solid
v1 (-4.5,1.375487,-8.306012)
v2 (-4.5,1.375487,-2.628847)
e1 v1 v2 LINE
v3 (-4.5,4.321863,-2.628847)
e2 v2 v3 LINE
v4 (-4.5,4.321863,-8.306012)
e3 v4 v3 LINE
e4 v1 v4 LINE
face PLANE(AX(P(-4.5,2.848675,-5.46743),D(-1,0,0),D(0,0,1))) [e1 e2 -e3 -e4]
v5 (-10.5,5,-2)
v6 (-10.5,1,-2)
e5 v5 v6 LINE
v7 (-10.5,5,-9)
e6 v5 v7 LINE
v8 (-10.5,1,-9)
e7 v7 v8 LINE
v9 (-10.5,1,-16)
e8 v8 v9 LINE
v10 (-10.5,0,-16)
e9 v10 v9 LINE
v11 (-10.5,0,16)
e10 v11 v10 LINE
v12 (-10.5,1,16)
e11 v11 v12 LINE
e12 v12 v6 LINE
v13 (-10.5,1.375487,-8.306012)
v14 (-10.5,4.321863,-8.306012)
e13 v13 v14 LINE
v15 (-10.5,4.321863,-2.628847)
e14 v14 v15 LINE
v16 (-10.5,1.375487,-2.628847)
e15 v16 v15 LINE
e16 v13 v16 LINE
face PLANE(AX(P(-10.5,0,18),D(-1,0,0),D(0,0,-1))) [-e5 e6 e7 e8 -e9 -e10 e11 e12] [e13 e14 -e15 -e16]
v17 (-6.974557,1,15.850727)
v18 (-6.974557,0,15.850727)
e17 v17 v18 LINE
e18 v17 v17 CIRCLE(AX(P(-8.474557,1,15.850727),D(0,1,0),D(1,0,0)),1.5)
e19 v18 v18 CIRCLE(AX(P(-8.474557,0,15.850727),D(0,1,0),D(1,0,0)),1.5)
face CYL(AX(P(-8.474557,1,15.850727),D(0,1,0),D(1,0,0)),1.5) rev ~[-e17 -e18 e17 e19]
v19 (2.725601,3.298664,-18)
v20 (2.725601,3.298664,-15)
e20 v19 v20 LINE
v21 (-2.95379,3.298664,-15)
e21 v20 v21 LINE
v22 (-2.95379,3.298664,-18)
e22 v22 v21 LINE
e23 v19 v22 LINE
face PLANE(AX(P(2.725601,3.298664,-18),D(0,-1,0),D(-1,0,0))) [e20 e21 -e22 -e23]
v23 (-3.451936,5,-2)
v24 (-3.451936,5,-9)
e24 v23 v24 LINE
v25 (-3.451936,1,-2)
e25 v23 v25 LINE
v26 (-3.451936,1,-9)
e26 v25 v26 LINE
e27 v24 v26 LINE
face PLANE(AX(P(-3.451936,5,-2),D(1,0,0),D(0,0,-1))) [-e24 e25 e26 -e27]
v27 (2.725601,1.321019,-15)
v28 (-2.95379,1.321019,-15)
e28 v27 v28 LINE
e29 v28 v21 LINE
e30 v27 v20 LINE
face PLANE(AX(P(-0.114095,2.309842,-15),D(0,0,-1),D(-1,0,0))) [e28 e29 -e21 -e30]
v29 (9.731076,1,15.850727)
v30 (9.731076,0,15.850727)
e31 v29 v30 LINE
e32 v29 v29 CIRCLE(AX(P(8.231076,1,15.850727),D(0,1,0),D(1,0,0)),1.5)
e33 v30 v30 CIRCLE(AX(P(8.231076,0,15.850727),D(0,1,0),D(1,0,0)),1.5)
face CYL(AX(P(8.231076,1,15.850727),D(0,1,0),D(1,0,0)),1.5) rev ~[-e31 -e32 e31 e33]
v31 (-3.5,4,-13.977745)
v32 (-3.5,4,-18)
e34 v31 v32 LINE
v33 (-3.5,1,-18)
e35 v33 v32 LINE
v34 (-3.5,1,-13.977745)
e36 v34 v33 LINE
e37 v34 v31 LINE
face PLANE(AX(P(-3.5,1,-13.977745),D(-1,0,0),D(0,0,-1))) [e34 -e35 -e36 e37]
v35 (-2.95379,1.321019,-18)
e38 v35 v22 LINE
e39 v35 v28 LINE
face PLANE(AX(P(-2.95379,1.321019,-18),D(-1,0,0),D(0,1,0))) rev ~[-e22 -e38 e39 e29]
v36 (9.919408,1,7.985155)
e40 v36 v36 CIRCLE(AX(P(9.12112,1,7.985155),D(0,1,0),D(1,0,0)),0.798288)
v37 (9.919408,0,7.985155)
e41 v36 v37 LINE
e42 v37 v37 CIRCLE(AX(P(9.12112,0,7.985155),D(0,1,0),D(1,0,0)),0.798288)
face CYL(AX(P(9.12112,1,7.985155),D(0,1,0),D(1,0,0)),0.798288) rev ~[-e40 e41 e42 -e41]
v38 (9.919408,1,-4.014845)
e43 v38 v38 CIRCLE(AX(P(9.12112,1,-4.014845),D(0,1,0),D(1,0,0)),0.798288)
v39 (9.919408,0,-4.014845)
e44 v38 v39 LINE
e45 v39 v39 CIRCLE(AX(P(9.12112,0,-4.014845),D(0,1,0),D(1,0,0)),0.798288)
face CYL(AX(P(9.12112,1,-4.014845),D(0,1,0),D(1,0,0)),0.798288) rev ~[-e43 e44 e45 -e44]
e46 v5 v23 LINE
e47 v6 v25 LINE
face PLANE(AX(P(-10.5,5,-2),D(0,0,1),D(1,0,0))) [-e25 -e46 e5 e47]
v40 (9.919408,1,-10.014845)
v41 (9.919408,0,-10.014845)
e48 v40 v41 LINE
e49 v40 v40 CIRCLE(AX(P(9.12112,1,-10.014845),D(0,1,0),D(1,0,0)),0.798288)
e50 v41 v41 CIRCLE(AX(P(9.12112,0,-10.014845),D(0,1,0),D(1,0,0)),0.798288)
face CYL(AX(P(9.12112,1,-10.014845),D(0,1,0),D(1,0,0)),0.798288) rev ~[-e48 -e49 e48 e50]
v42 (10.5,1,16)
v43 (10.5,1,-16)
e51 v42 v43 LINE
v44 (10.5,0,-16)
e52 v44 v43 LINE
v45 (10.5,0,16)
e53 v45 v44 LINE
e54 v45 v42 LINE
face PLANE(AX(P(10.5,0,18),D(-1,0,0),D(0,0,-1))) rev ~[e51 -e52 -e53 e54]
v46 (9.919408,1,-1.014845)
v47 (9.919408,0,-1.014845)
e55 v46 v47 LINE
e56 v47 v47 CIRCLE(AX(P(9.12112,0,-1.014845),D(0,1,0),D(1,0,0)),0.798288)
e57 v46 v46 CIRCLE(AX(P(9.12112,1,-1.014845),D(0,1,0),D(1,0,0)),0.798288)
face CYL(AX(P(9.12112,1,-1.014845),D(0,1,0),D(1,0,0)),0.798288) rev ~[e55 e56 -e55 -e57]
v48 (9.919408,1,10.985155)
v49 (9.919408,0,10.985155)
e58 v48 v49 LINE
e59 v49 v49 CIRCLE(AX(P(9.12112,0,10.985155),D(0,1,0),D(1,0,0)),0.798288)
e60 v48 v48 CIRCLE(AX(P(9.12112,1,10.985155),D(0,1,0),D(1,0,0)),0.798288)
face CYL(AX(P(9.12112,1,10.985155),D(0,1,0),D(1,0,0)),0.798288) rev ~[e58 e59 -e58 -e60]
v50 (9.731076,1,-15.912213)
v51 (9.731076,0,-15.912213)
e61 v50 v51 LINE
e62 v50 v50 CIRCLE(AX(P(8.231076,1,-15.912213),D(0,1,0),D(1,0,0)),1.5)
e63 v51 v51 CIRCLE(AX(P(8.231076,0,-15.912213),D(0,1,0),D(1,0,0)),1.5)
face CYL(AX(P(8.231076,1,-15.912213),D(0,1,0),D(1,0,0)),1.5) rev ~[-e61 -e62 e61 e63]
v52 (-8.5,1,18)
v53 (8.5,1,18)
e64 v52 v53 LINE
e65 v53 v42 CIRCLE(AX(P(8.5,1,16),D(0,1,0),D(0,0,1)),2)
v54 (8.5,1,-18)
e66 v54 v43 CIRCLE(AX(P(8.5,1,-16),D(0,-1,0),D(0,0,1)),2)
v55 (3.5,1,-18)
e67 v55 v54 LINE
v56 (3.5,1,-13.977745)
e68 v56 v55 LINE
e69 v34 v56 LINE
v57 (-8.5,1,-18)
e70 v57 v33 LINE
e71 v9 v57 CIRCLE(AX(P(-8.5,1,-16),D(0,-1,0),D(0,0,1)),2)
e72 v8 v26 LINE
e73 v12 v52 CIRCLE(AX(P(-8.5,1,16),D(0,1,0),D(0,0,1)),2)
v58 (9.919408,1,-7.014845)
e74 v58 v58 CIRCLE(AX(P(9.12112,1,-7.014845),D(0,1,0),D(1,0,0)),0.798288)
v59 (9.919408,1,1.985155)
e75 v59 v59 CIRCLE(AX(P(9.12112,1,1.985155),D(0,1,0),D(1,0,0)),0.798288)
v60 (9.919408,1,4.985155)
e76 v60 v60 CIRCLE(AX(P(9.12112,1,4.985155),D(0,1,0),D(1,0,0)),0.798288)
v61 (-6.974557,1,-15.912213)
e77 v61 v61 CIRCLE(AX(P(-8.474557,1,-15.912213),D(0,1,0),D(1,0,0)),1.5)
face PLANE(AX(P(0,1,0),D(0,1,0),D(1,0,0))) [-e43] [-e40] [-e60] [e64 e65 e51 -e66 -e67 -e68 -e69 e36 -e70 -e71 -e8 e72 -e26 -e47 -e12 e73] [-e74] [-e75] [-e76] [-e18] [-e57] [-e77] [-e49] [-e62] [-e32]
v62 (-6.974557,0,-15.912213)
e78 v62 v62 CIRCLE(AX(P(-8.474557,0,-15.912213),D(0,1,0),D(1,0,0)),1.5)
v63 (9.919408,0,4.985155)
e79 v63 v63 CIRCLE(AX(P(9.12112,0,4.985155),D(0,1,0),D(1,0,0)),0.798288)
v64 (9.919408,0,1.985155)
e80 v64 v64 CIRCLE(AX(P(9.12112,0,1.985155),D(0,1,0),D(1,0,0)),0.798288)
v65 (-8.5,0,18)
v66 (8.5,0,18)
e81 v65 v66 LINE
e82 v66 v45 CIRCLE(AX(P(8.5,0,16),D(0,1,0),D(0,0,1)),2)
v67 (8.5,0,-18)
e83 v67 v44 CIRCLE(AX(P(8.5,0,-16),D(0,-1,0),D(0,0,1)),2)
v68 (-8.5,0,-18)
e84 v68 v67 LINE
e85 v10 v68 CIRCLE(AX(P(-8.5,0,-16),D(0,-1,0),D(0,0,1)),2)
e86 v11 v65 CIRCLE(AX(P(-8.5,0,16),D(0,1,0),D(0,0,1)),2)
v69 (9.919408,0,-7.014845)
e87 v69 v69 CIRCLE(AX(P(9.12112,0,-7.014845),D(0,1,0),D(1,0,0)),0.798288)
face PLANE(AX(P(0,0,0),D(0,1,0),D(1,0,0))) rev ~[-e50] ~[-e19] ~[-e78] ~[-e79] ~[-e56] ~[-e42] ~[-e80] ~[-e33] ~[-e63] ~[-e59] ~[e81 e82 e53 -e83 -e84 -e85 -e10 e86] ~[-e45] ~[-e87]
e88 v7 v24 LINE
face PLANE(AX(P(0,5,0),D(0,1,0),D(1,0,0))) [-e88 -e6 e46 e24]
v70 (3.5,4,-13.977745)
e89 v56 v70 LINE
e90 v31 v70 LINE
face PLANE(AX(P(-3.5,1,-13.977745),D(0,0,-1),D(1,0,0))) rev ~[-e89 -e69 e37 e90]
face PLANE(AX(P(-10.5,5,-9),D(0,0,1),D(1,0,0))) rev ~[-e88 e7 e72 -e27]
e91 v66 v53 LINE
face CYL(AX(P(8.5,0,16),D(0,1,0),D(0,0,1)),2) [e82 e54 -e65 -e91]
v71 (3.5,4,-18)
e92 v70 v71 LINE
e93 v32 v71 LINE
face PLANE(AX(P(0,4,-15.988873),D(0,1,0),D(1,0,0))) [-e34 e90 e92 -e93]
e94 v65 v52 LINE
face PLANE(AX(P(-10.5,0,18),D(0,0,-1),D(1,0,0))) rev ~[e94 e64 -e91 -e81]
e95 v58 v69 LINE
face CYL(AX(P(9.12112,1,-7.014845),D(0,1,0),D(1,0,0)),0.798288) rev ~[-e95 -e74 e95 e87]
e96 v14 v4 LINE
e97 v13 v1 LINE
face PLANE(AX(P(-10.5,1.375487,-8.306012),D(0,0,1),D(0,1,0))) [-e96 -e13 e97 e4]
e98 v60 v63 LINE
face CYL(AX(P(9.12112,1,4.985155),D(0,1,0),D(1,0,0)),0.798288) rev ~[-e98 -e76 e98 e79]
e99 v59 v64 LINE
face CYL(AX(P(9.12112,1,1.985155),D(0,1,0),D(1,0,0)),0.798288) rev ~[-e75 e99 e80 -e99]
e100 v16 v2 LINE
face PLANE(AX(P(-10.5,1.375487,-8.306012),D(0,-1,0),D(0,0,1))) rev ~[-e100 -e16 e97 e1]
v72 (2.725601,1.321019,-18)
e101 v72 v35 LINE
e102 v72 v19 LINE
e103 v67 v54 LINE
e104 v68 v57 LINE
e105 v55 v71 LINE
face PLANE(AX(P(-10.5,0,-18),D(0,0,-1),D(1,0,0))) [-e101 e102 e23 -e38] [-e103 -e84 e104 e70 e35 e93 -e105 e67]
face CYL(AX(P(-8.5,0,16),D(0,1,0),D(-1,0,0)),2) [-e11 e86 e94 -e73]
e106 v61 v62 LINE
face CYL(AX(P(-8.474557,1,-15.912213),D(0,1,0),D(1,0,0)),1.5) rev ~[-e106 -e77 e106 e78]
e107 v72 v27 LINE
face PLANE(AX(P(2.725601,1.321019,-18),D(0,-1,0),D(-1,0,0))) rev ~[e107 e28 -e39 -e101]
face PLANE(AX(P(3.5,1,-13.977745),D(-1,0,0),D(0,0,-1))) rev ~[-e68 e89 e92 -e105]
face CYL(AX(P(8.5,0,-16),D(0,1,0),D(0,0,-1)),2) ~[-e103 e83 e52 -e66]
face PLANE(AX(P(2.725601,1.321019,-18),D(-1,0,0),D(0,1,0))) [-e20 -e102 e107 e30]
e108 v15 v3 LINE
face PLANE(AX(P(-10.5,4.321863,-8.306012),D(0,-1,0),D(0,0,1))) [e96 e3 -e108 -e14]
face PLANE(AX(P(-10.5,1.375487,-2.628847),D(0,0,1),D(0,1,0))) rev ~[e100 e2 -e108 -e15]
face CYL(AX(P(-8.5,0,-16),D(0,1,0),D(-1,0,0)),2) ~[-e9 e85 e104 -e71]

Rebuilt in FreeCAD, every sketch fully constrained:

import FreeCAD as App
import Part
import Sketcher
from FreeCAD import Vector


def edges_at(feature, points):
    """Names of the edges that pass closest to the given points."""
    edges = feature.Shape.Edges
    near = lambda p: min(range(len(edges)), key=lambda i: edges[i].distToShape(Part.Vertex(*p))[0])
    return sorted({f"Edge{near(p) + 1}" for p in points})

doc = App.newDocument("Part")
body = doc.addObject("PartDesign::Body", "Body")

sketch1 = doc.addObject("Sketcher::SketchObject", "Sketch")
body.addObject(sketch1)
sketch1.AttachmentSupport = (doc.XZ_Plane, [""])
sketch1.MapMode = "FlatFace"
sketch1.addGeometry([
    Part.LineSegment(Vector(-10, -18, 0), Vector(-10, 18, 0)),
    Part.LineSegment(Vector(-10, 18, 0), Vector(10, 18, 0)),
    Part.LineSegment(Vector(10, 18, 0), Vector(10, -18, 0)),
    Part.LineSegment(Vector(10, -18, 0), Vector(-10, -18, 0)),
], False)
sketch1.addConstraint([
    Sketcher.Constraint("Coincident", 0, 2, 1, 1),
    Sketcher.Constraint("Coincident", 1, 2, 2, 1),
    Sketcher.Constraint("Coincident", 2, 2, 3, 1),
    Sketcher.Constraint("Coincident", 3, 2, 0, 1),
    Sketcher.Constraint("Vertical", 0),
    Sketcher.Constraint("Horizontal", 1),
    Sketcher.Constraint("Vertical", 2),
    Sketcher.Constraint("Horizontal", 3),
    Sketcher.Constraint("Symmetric", 0, 2, 2, 2, -1, 1),
    Sketcher.Constraint("DistanceX", 1, 1, 1, 2, 21.0),
    Sketcher.Constraint("DistanceY", 0, 1, 0, 2, 36.0),
])
pad1 = doc.addObject("PartDesign::Pad", "Pad")
body.addObject(pad1)
pad1.Profile = sketch1
pad1.Length = 5
pad1.Reversed = True

sketch2 = doc.addObject("Sketcher::SketchObject", "Sketch001")
body.addObject(sketch2)
sketch2.AttachmentSupport = (doc.XZ_Plane, [""])
sketch2.MapMode = "FlatFace"
sketch2.AttachmentOffset = App.Placement(Vector(0, 0, -5), App.Rotation())
sketch2.addGeometry([
    Part.LineSegment(Vector(-16, -23, 0), Vector(-16, 23, 0)),
    Part.LineSegment(Vector(-16, 23, 0), Vector(16, 23, 0)),
    Part.LineSegment(Vector(16, 23, 0), Vector(16, -23, 0)),
    Part.LineSegment(Vector(16, -23, 0), Vector(-16, -23, 0)),
    Part.LineSegment(Vector(-3, -2, 0), Vector(-10, -2, 0)),
    Part.LineSegment(Vector(-10, -2, 0), Vector(-10, -9, 0)),
    Part.LineSegment(Vector(-10, -9, 0), Vector(-3, -9, 0)),
    Part.LineSegment(Vector(-3, -9, 0), Vector(-3, -2, 0)),
], False)
sketch2.addConstraint([
    Sketcher.Constraint("Coincident", 0, 2, 1, 1),
    Sketcher.Constraint("Coincident", 1, 2, 2, 1),
    Sketcher.Constraint("Coincident", 2, 2, 3, 1),
    Sketcher.Constraint("Coincident", 3, 2, 0, 1),
    Sketcher.Constraint("Coincident", 4, 2, 5, 1),
    Sketcher.Constraint("Coincident", 5, 2, 6, 1),
    Sketcher.Constraint("Coincident", 6, 2, 7, 1),
    Sketcher.Constraint("Coincident", 7, 2, 4, 1),
    Sketcher.Constraint("Vertical", 0),
    Sketcher.Constraint("Horizontal", 1),
    Sketcher.Constraint("Vertical", 2),
    Sketcher.Constraint("Horizontal", 3),
    Sketcher.Constraint("Horizontal", 4),
    Sketcher.Constraint("Vertical", 5),
    Sketcher.Constraint("Horizontal", 6),
    Sketcher.Constraint("Vertical", 7),
    Sketcher.Constraint("Symmetric", 0, 2, 2, 2, -1, 1),
    Sketcher.Constraint("DistanceY", 5, 2, 5, 1, 7.0),
    Sketcher.Constraint("DistanceY", 4, 2, -1, 1, 2.0),
    Sketcher.Constraint("DistanceX", 4, 2, -1, 1, 10.5),
    Sketcher.Constraint("DistanceX", 1, 1, 1, 2, 31.396),
    Sketcher.Constraint("DistanceY", 0, 1, 0, 2, 46.396),
    Sketcher.Constraint("DistanceX", 4, 2, 4, 1, 7.048064),
])
pocket1 = doc.addObject("PartDesign::Pocket", "Pocket")
body.addObject(pocket1)
pocket1.Profile = sketch2
pocket1.Type = "TwoLengths"
pocket1.Length = 7
pocket1.Length2 = 4

sketch3 = doc.addObject("Sketcher::SketchObject", "Sketch002")
body.addObject(sketch3)
sketch3.AttachmentSupport = (doc.XZ_Plane, [""])
sketch3.MapMode = "FlatFace"
sketch3.AttachmentOffset = App.Placement(Vector(0, 0, -1), App.Rotation())
sketch3.addGeometry([
    Part.LineSegment(Vector(-3.5, -18, 0), Vector(-3.5, -14, 0)),
    Part.LineSegment(Vector(-3.5, -14, 0), Vector(3.5, -14, 0)),
    Part.LineSegment(Vector(3.5, -14, 0), Vector(3.5, -18, 0)),
    Part.LineSegment(Vector(3.5, -18, 0), Vector(-3.5, -18, 0)),
], False)
sketch3.addConstraint([
    Sketcher.Constraint("Coincident", 0, 2, 1, 1),
    Sketcher.Constraint("Coincident", 1, 2, 2, 1),
    Sketcher.Constraint("Coincident", 2, 2, 3, 1),
    Sketcher.Constraint("Coincident", 3, 2, 0, 1),
    Sketcher.Constraint("Vertical", 0),
    Sketcher.Constraint("Horizontal", 1),
    Sketcher.Constraint("Vertical", 2),
    Sketcher.Constraint("Horizontal", 3),
    Sketcher.Constraint("DistanceX", 1, 1, 1, 2, 7.0),
    Sketcher.Constraint("DistanceY", 2, 2, -1, 1, 18.0),
    Sketcher.Constraint("DistanceX", 0, 2, -1, 1, 3.5),
    Sketcher.Constraint("DistanceY", 0, 1, 0, 2, 4.022255),
])
pad2 = doc.addObject("PartDesign::Pad", "Pad001")
body.addObject(pad2)
pad2.Profile = sketch3
pad2.Length = 3
pad2.Reversed = True

sketch4 = doc.addObject("Sketcher::SketchObject", "Sketch003")
body.addObject(sketch4)
sketch4.AttachmentSupport = (doc.XY_Plane, [""])
sketch4.MapMode = "FlatFace"
sketch4.AttachmentOffset = App.Placement(Vector(0, 0, -18), App.Rotation())
sketch4.addGeometry([
    Part.LineSegment(Vector(2.7, 3.3, 0), Vector(2.7, 1.3, 0)),
    Part.LineSegment(Vector(2.7, 1.3, 0), Vector(-3, 1.3, 0)),
    Part.LineSegment(Vector(-3, 1.3, 0), Vector(-3, 3.3, 0)),
    Part.LineSegment(Vector(-3, 3.3, 0), Vector(2.7, 3.3, 0)),
], False)
sketch4.addConstraint([
    Sketcher.Constraint("Coincident", 0, 2, 1, 1),
    Sketcher.Constraint("Coincident", 1, 2, 2, 1),
    Sketcher.Constraint("Coincident", 2, 2, 3, 1),
    Sketcher.Constraint("Coincident", 3, 2, 0, 1),
    Sketcher.Constraint("Vertical", 0),
    Sketcher.Constraint("Horizontal", 1),
    Sketcher.Constraint("Vertical", 2),
    Sketcher.Constraint("Horizontal", 3),
    Sketcher.Constraint("DistanceX", 1, 2, 1, 1, 5.679391),
    Sketcher.Constraint("DistanceX", -1, 1, 0, 2, 2.725601),
    Sketcher.Constraint("DistanceY", 0, 2, 0, 1, 1.977645),
    Sketcher.Constraint("DistanceY", -1, 1, 0, 2, 1.321019),
])
pocket2 = doc.addObject("PartDesign::Pocket", "Pocket001")
body.addObject(pocket2)
pocket2.Profile = sketch4
pocket2.Length = 3
pocket2.Reversed = True

sketch5 = doc.addObject("Sketcher::SketchObject", "Sketch004")
body.addObject(sketch5)
sketch5.AttachmentSupport = (doc.YZ_Plane, [""])
sketch5.MapMode = "FlatFace"
sketch5.AttachmentOffset = App.Placement(Vector(0, 0, -10.5), App.Rotation())
sketch5.addGeometry([
    Part.LineSegment(Vector(4.3, -8.3, 0), Vector(1.4, -8.3, 0)),
    Part.LineSegment(Vector(1.4, -8.3, 0), Vector(1.4, -2.6, 0)),
    Part.LineSegment(Vector(1.4, -2.6, 0), Vector(4.3, -2.6, 0)),
    Part.LineSegment(Vector(4.3, -2.6, 0), Vector(4.3, -8.3, 0)),
], False)
sketch5.addConstraint([
    Sketcher.Constraint("Coincident", 0, 2, 1, 1),
    Sketcher.Constraint("Coincident", 1, 2, 2, 1),
    Sketcher.Constraint("Coincident", 2, 2, 3, 1),
    Sketcher.Constraint("Coincident", 3, 2, 0, 1),
    Sketcher.Constraint("Horizontal", 0),
    Sketcher.Constraint("Vertical", 1),
    Sketcher.Constraint("Horizontal", 2),
    Sketcher.Constraint("Vertical", 3),
    Sketcher.Constraint("DistanceX", 0, 2, 0, 1, 2.946377),
    Sketcher.Constraint("DistanceY", 1, 1, 1, 2, 5.677165),
    Sketcher.Constraint("DistanceX", -1, 1, 0, 2, 1.375487),
    Sketcher.Constraint("DistanceY", 0, 2, -1, 1, 8.306012),
])
pocket3 = doc.addObject("PartDesign::Pocket", "Pocket002")
body.addObject(pocket3)
pocket3.Profile = sketch5
pocket3.Length = 6
pocket3.Reversed = True
doc.recompute()

fillet = doc.addObject("PartDesign::Fillet", "Fillet")
body.addObject(fillet)
fillet.Base = (pocket3, edges_at(pocket3, [
    (-10.5, 0.5, -18),
    (10.5, 0.5, -18),
    (10.5, 0.5, 18),
    (-10.5, 0.5, 18),
]))
fillet.Radius = 2

sketch6 = doc.addObject("Sketcher::SketchObject", "Sketch005")
body.addObject(sketch6)
sketch6.AttachmentSupport = (doc.XZ_Plane, [""])
sketch6.MapMode = "FlatFace"
sketch6.AttachmentOffset = App.Placement(Vector(0, 0, -1), App.Rotation())
sketch6.addGeometry(Part.Circle(Vector(-8.5, -15.9, 0), Vector(0, 0, 1), 1.5), False)
sketch6.addConstraint([
    Sketcher.Constraint("Diameter", 0, 3.0),
    Sketcher.Constraint("DistanceX", 0, 3, -1, 1, 8.474557),
    Sketcher.Constraint("DistanceY", 0, 3, -1, 1, 15.912213),
])
pocket4 = doc.addObject("PartDesign::Pocket", "Pocket003")
body.addObject(pocket4)
pocket4.Profile = sketch6
pocket4.Length = 10
pocket4.Reversed = True

sketch7 = doc.addObject("Sketcher::SketchObject", "Sketch006")
body.addObject(sketch7)
sketch7.AttachmentSupport = (doc.XZ_Plane, [""])
sketch7.MapMode = "FlatFace"
sketch7.AttachmentOffset = App.Placement(Vector(0, 0, -1), App.Rotation())
sketch7.addGeometry([
    Part.Circle(Vector(8.2, -15.9, 0), Vector(0, 0, 1), 1.5),
    Part.Circle(Vector(-8.5, 15.9, 0), Vector(0, 0, 1), 1.5),
    Part.Circle(Vector(8.2, 15.9, 0), Vector(0, 0, 1), 1.5),
], False)
sketch7.addConstraint([
    Sketcher.Constraint("Equal", 0, 1),
    Sketcher.Constraint("Equal", 1, 2),
    Sketcher.Constraint("Horizontal", 1, 3, 2, 3),
    Sketcher.Constraint("Vertical", 0, 3, 2, 3),
    Sketcher.Constraint("Diameter", 0, 3.0),
    Sketcher.Constraint("DistanceY", 0, 3, 1, 3, 31.762941),
    Sketcher.Constraint("DistanceX", -1, 1, 0, 3, 8.231076),
    Sketcher.Constraint("DistanceY", 0, 3, -1, 1, 15.912213),
    Sketcher.Constraint("DistanceX", 1, 3, -1, 1, 8.474557),
])
pocket5 = doc.addObject("PartDesign::Pocket", "Pocket004")
body.addObject(pocket5)
pocket5.Profile = sketch7
pocket5.Length = 10
pocket5.Reversed = True

sketch8 = doc.addObject("Sketcher::SketchObject", "Sketch007")
body.addObject(sketch8)
sketch8.AttachmentSupport = (doc.XZ_Plane, [""])
sketch8.MapMode = "FlatFace"
sketch8.AttachmentOffset = App.Placement(Vector(0, 0, -1), App.Rotation())
sketch8.addGeometry(Part.Circle(Vector(9.1, 11, 0), Vector(0, 0, 1), 0.8), False)
sketch8.addConstraint([
    Sketcher.Constraint("Diameter", 0, 1.596575),
    Sketcher.Constraint("DistanceX", -1, 1, 0, 3, 9.12112),
    Sketcher.Constraint("DistanceY", -1, 1, 0, 3, 10.985155),
])
pocket6 = doc.addObject("PartDesign::Pocket", "Pocket005")
body.addObject(pocket6)
pocket6.Profile = sketch8
pocket6.Length = 10
pocket6.Reversed = True
doc.recompute()

linearpattern = doc.addObject("PartDesign::LinearPattern", "LinearPattern")
body.addObject(linearpattern)
linearpattern.Originals = [pocket6]
linearpattern.Direction = (doc.Z_Axis, [""])
linearpattern.Mode = "offset"
linearpattern.Offset = 3
linearpattern.Occurrences = 8
linearpattern.Reversed = True
body.Tip = linearpattern

doc.recompute()
